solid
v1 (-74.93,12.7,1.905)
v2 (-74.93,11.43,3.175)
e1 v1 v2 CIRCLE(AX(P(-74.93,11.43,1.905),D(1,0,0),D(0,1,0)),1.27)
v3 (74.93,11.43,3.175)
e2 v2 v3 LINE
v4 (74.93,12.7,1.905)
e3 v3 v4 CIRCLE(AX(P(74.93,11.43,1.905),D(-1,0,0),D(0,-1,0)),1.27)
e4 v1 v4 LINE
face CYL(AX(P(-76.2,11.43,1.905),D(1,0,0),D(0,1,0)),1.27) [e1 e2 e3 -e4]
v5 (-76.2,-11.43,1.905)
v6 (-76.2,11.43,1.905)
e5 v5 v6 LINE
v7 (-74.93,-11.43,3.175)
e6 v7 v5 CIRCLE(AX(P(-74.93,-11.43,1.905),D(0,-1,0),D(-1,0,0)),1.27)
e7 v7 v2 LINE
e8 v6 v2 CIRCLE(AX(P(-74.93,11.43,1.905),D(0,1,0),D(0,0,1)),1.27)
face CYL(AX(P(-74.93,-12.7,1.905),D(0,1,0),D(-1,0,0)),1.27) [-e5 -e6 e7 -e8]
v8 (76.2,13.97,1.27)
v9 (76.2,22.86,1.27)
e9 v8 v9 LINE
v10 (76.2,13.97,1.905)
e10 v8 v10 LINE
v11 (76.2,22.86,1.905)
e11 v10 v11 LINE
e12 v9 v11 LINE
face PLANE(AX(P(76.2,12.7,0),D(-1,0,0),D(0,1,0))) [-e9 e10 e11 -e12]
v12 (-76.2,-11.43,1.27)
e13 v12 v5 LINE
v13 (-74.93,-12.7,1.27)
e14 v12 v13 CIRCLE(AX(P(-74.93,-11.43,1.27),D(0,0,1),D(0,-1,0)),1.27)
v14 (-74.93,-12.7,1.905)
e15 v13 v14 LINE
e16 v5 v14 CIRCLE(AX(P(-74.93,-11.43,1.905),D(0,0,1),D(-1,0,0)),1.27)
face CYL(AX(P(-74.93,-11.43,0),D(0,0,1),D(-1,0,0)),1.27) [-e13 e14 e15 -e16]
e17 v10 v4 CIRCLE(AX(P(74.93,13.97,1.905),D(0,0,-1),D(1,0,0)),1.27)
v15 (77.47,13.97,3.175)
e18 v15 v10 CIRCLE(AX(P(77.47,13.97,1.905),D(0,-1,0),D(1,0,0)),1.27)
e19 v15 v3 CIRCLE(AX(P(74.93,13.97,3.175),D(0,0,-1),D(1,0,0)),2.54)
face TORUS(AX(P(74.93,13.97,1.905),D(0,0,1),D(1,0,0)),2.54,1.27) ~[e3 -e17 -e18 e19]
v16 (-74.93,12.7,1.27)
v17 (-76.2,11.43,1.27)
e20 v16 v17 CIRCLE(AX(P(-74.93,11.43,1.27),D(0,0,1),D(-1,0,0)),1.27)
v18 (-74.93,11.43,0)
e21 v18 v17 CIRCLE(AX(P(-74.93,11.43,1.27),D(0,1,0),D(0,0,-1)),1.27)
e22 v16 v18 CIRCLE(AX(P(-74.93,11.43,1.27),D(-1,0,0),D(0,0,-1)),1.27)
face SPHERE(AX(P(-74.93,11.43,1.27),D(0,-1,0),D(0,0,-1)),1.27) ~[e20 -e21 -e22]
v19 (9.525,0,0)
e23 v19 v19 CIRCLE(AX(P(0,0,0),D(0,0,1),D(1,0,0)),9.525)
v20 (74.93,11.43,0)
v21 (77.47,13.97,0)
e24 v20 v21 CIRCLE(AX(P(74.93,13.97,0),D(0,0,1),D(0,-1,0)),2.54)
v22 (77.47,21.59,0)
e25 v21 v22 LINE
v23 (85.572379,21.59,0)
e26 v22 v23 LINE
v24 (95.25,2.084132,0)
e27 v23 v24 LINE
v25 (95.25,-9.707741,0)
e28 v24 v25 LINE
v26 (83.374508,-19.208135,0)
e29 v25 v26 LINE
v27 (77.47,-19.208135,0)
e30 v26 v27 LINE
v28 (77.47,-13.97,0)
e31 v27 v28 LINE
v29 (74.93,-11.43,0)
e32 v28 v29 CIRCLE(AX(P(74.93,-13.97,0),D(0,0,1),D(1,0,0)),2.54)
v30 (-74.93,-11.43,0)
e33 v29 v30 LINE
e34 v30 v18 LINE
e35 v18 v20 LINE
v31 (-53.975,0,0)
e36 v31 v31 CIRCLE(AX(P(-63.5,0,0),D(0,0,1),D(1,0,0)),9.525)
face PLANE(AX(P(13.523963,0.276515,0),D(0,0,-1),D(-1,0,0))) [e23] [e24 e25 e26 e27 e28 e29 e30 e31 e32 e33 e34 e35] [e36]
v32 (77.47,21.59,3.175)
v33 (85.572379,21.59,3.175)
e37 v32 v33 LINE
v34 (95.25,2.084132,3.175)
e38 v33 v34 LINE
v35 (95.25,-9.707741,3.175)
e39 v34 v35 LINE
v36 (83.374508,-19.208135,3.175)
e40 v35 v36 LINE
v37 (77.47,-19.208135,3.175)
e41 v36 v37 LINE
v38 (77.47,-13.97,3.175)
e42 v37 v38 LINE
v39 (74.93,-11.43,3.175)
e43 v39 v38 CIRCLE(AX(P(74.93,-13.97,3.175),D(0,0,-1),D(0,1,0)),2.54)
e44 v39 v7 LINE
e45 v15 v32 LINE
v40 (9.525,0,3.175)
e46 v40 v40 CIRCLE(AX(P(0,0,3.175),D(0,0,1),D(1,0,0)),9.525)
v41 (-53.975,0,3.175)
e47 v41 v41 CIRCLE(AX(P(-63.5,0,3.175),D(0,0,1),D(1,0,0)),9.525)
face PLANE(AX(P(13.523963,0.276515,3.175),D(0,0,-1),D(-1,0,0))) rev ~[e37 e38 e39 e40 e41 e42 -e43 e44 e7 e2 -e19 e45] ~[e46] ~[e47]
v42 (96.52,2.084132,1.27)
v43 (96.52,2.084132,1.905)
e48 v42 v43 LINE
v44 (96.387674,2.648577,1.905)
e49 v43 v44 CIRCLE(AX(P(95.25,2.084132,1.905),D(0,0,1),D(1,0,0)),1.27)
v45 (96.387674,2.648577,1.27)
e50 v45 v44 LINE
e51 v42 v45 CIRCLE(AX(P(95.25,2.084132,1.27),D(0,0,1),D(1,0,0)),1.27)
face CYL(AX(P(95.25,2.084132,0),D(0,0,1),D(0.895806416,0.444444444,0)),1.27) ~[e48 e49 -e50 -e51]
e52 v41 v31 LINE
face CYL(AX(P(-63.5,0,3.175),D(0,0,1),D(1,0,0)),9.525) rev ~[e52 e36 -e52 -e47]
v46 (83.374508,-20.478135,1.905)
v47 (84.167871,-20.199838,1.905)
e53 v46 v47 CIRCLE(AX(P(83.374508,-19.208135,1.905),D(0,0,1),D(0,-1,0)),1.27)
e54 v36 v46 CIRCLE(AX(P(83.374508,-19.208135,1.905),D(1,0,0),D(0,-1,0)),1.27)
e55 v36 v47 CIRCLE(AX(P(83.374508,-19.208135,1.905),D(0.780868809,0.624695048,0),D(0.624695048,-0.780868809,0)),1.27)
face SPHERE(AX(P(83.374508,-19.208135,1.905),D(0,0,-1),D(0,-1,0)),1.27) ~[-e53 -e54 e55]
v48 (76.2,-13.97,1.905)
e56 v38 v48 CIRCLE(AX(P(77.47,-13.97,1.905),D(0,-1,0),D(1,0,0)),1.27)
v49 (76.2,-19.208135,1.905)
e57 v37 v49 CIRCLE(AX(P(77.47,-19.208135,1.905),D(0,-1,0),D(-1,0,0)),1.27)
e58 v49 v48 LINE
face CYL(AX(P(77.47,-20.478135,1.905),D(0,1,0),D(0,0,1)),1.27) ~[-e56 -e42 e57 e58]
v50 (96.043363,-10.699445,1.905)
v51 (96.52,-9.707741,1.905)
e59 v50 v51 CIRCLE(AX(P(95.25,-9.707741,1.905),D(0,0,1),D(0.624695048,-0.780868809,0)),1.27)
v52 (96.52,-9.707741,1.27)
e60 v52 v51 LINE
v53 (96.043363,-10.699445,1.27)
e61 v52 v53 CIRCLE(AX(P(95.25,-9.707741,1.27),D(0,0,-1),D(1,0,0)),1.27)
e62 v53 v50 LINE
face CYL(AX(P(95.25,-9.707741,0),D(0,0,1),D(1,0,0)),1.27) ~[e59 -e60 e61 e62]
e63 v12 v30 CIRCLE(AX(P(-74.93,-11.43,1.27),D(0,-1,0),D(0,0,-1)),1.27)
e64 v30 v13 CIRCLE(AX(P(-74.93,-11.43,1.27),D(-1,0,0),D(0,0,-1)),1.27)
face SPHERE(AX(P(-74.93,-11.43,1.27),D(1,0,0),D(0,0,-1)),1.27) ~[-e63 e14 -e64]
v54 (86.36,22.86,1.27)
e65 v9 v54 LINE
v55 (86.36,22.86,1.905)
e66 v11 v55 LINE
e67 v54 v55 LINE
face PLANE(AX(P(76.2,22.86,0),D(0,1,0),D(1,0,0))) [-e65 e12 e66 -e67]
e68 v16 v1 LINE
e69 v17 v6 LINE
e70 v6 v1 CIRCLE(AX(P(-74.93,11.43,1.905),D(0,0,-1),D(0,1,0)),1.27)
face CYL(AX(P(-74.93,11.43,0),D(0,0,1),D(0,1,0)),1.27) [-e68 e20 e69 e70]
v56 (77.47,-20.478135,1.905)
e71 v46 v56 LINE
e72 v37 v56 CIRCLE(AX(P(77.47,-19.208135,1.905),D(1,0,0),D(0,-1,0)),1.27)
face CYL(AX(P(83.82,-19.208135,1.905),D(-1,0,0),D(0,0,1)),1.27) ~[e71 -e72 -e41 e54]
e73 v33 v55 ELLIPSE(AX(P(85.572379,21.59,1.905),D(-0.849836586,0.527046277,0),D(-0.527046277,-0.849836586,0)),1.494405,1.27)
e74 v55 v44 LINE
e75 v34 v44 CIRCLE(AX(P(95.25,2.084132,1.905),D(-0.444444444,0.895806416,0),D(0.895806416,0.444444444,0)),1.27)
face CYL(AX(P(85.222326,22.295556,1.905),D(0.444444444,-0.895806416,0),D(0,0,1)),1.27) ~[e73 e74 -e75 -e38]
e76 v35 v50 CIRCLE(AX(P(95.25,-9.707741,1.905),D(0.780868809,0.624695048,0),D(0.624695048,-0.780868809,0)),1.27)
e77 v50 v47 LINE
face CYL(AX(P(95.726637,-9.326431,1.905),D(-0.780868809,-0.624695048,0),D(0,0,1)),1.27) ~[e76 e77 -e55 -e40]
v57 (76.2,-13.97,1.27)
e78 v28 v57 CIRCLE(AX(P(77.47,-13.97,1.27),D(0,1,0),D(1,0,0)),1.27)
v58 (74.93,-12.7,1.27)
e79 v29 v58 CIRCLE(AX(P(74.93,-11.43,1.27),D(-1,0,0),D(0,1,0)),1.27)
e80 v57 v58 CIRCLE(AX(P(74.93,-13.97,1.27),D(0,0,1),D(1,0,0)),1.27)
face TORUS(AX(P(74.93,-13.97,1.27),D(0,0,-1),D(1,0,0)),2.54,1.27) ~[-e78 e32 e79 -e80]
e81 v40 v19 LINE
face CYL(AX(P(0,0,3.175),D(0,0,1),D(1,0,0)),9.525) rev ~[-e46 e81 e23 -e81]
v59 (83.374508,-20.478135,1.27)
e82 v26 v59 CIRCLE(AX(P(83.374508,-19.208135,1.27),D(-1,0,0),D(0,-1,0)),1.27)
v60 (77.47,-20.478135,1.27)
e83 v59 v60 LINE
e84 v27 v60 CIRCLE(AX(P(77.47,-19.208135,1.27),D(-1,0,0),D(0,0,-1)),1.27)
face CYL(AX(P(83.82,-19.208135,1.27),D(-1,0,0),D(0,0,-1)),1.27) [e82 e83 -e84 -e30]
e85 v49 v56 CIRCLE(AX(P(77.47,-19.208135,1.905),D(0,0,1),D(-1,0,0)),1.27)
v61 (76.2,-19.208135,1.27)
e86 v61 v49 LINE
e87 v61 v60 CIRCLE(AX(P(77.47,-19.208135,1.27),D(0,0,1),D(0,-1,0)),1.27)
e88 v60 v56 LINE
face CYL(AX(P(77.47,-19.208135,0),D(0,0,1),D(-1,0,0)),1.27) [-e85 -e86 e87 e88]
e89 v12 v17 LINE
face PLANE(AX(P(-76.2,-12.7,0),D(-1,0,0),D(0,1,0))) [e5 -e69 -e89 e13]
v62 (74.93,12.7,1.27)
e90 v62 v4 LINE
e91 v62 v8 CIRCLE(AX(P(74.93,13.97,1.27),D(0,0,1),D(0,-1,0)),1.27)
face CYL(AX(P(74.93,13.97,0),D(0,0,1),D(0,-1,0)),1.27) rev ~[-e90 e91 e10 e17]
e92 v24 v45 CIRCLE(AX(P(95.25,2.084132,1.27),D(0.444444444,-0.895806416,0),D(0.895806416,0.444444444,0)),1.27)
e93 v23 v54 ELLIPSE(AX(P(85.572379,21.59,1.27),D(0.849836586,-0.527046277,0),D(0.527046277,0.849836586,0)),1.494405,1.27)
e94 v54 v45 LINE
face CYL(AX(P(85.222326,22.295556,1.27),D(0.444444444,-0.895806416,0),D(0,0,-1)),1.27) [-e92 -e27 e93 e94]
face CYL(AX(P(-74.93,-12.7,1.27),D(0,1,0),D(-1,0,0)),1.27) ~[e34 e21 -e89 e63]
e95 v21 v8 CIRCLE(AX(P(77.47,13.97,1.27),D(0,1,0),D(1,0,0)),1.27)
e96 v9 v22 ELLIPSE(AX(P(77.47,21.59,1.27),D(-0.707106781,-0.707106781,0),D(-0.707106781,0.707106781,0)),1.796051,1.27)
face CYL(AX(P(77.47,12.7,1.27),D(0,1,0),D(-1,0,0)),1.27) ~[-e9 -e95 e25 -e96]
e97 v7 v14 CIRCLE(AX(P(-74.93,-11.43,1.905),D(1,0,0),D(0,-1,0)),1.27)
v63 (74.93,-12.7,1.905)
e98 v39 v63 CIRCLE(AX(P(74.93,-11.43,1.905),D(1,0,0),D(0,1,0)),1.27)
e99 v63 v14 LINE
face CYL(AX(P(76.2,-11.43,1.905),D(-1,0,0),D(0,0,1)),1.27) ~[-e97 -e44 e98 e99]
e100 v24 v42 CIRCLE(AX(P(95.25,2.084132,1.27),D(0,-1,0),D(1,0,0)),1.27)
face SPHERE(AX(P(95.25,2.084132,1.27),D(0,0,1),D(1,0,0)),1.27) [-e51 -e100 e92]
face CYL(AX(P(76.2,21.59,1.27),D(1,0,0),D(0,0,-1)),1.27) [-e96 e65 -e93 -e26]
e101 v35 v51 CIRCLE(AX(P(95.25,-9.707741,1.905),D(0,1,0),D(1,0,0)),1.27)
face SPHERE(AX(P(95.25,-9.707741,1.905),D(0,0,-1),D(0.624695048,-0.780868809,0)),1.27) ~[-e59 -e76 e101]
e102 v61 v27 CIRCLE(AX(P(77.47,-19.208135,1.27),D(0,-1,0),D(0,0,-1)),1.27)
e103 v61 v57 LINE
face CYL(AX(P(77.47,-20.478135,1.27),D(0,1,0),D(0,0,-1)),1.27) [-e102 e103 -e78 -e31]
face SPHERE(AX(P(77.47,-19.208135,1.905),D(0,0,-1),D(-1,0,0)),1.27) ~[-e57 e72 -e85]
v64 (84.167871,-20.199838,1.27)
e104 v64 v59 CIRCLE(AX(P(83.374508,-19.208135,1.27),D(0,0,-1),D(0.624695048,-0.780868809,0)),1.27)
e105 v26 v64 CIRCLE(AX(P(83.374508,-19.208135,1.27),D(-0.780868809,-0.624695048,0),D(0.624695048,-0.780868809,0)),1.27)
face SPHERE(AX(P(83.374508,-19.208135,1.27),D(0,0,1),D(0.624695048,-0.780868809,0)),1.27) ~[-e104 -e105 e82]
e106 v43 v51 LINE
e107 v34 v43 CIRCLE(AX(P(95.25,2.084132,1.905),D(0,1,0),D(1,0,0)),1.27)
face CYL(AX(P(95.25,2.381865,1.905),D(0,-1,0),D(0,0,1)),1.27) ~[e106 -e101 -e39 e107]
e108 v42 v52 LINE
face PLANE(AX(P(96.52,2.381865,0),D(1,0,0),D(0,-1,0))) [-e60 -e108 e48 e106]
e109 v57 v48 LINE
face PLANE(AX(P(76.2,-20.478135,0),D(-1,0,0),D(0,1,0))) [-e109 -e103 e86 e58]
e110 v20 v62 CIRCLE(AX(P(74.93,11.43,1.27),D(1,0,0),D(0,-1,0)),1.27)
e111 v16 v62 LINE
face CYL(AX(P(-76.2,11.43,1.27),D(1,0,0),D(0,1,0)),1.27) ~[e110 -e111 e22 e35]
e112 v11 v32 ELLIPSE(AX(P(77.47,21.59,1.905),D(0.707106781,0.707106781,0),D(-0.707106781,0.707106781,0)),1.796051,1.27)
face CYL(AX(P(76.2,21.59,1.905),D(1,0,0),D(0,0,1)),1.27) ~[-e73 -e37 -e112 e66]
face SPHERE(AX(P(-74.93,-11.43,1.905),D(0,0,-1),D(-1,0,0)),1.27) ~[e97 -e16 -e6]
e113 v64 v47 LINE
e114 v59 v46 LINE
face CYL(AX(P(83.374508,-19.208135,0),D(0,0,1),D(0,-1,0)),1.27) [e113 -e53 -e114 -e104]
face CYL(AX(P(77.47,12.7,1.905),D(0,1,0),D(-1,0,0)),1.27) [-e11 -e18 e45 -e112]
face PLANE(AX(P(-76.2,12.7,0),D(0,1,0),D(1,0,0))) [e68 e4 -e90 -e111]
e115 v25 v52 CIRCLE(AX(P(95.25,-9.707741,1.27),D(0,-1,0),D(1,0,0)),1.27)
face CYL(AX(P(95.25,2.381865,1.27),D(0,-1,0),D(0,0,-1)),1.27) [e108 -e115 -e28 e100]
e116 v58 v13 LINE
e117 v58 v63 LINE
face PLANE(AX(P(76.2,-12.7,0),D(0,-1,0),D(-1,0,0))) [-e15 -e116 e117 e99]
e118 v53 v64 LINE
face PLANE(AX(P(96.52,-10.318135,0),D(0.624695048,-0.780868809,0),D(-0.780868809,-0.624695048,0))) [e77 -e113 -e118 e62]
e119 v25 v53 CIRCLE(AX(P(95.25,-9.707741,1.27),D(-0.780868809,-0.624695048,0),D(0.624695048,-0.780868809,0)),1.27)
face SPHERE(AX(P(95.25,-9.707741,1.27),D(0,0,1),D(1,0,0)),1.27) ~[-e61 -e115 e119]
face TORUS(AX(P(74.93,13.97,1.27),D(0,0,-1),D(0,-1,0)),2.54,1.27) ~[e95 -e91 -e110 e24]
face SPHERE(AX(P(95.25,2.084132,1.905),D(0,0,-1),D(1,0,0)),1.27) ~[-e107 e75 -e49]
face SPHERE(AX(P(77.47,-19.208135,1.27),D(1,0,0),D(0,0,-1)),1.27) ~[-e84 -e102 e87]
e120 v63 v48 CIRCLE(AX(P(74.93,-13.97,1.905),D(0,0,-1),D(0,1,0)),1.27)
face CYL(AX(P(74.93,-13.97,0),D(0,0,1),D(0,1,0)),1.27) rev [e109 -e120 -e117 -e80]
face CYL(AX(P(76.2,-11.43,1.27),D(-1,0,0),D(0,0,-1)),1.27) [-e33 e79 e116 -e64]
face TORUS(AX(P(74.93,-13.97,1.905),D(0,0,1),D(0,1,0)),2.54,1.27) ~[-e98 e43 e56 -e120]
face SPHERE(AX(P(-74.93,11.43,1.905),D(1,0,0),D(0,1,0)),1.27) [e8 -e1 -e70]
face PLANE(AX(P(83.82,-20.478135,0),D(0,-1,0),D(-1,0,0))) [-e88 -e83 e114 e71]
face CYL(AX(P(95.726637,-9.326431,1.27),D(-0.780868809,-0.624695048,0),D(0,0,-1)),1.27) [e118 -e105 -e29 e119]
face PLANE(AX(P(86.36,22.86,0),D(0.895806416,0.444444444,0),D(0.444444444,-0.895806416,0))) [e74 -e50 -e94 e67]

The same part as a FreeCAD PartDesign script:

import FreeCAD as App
import Part
import Sketcher
Q = App.Units.Quantity


def edges_at(feature, points):
    """Names of the edges that pass closest to the given points."""
    edges = feature.Shape.Edges
    near = lambda p: min(range(len(edges)), key=lambda i: edges[i].distToShape(Part.Vertex(*p))[0])
    return sorted({f"Edge{near(p) + 1}" for p in points})

doc = App.newDocument("Part")
body = doc.addObject("PartDesign::Body", "Body")

# Sketch on XY plane
sketch1 = doc.addObject("Sketcher::SketchObject", "Sketch")
body.addObject(sketch1)
sketch1.AttachmentSupport = (doc.XY_Plane, [""])
sketch1.MapMode = "FlatFace"
sketch1.addGeometry([
    Part.LineSegment(App.Vector(76, 13, 0), App.Vector(-76, 13, 0)),  # 0
    Part.LineSegment(App.Vector(-76, 13, 0), App.Vector(-76, -13, 0)),  # 1
    Part.LineSegment(App.Vector(-76, -13, 0), App.Vector(76, -13, 0)),  # 2
    Part.LineSegment(App.Vector(76, -13, 0), App.Vector(76, -20, 0)),  # 3
    Part.LineSegment(App.Vector(76, -20, 0), App.Vector(84, -20, 0)),  # 4
    Part.LineSegment(App.Vector(84, -20, 0), App.Vector(97, -10, 0)),  # 5
    Part.LineSegment(App.Vector(97, -10, 0), App.Vector(97, 2, 0)),  # 6
    Part.LineSegment(App.Vector(97, 2, 0), App.Vector(86, 23, 0)),  # 7
    Part.LineSegment(App.Vector(86, 23, 0), App.Vector(76, 23, 0)),  # 8
    Part.LineSegment(App.Vector(76, 23, 0), App.Vector(76, 13, 0)),  # 9
], False)
sketch1.addConstraint([
    Sketcher.Constraint("Coincident", 0, 2, 1, 1),
    Sketcher.Constraint("Coincident", 1, 2, 2, 1),
    Sketcher.Constraint("Coincident", 2, 2, 3, 1),
    Sketcher.Constraint("Coincident", 3, 2, 4, 1),
    Sketcher.Constraint("Coincident", 4, 2, 5, 1),
    Sketcher.Constraint("Coincident", 5, 2, 6, 1),
    Sketcher.Constraint("Coincident", 6, 2, 7, 1),
    Sketcher.Constraint("Coincident", 7, 2, 8, 1),
    Sketcher.Constraint("Coincident", 8, 2, 9, 1),
    Sketcher.Constraint("Coincident", 9, 2, 0, 1),
    Sketcher.Constraint("Horizontal", 0),
    Sketcher.Constraint("Vertical", 1),
    Sketcher.Constraint("Horizontal", 2),
    Sketcher.Constraint("Vertical", 3),
    Sketcher.Constraint("Horizontal", 4),
    Sketcher.Constraint("Vertical", 6),
    Sketcher.Constraint("Horizontal", 8),
    Sketcher.Constraint("Vertical", 9),
    Sketcher.Constraint("Symmetric", 0, 2, 2, 2, -1, 1),
    Sketcher.Constraint("Vertical", 3, 2, 8, 2),
    Sketcher.Constraint("Equal", 8, 9),
    Sketcher.Constraint("DistanceX", 0, 2, 0, 1, Q("6 in")),
    Sketcher.Constraint("DistanceY", 1, 2, 1, 1, Q("1 in")),
    Sketcher.Constraint("DistanceX", 4, 1, 4, 2, Q("0.3 in")),
    Sketcher.Constraint("DistanceX", 8, 2, 8, 1, Q("0.4 in")),
    Sketcher.Constraint("DistanceY", 6, 1, 6, 2, Q("0.5 in")),
    Sketcher.Constraint("Distance", 7, Q("0.9 in")),
    Sketcher.Constraint("DistanceX", -1, 1, 5, 2, Q("3.8 in")),
    Sketcher.Constraint("DistanceY", 4, 2, 5, 2, Q("0.4 in")),
])
pad1 = doc.addObject("PartDesign::Pad", "Pad")
body.addObject(pad1)
pad1.Profile = sketch1
pad1.Length = Q("0.125 in")

# Sketch on XY plane
sketch2 = doc.addObject("Sketcher::SketchObject", "Sketch001")
body.addObject(sketch2)
sketch2.AttachmentSupport = (doc.XY_Plane, [""])
sketch2.MapMode = "FlatFace"
sketch2.AttachmentOffset = App.Placement(App.Vector(0, 0, 0.125 * 25.4), App.Rotation())
sketch2.addGeometry([
    Part.Circle(App.Vector(-64, 0, 0), App.Vector(0, 0, 1), 10),
    Part.Circle(App.Vector(0, 0, 0), App.Vector(0, 0, 1), 10),
], False)
sketch2.addConstraint([
    Sketcher.Constraint("Coincident", 1, 3, -1, 1),
    Sketcher.Constraint("Equal", 0, 1),
    Sketcher.Constraint("PointOnObject", 0, 3, -1),
    Sketcher.Constraint("Diameter", 0, Q("0.75 in")),
    Sketcher.Constraint("DistanceX", 0, 3, -1, 1, Q("2.5 in")),
])
pocket1 = doc.addObject("PartDesign::Pocket", "Pocket")
body.addObject(pocket1)
pocket1.Profile = sketch2
pocket1.Type = "ThroughAll"
doc.recompute()

fillet = doc.addObject("PartDesign::Fillet", "Fillet")
body.addObject(fillet)
fillet.Base = (pocket1, edges_at(pocket1, [
    (96.52, -3.968, 0),
    (90.17, -15.398, 0),
    (80.01, -20.478, 0),
    (76.2, -16.589, 0),
    (0, -12.7, 0),
    (-76.2, 0, 0),
    (0, 12.7, 0),
    (76.2, 17.78, 3.175),
    (76.2, 17.78, 0),
    (81.28, 22.86, 0),
    (91.44, 12.621, 0),
    (0, 12.7, 3.175),
    (96.52, 2.382, 1.587),
    (96.52, -10.318, 1.587),
    (83.82, -20.478, 1.587),
    (76.2, -20.478, 1.587),
    (76.2, -12.7, 1.587),
    (-76.2, -12.7, 1.587),
    (-76.2, 12.7, 1.587),
    (76.2, 12.7, 1.587),
    (-76.2, 0, 3.175),
    (0, -12.7, 3.175),
    (76.2, -16.589, 3.175),
    (80.01, -20.478, 3.175),
    (90.17, -15.398, 3.175),
    (96.52, -3.968, 3.175),
    (91.44, 12.621, 3.175),
    (81.28, 22.86, 3.175),
]))
fillet.Radius = Q("0.05 in")

doc.recompute()
